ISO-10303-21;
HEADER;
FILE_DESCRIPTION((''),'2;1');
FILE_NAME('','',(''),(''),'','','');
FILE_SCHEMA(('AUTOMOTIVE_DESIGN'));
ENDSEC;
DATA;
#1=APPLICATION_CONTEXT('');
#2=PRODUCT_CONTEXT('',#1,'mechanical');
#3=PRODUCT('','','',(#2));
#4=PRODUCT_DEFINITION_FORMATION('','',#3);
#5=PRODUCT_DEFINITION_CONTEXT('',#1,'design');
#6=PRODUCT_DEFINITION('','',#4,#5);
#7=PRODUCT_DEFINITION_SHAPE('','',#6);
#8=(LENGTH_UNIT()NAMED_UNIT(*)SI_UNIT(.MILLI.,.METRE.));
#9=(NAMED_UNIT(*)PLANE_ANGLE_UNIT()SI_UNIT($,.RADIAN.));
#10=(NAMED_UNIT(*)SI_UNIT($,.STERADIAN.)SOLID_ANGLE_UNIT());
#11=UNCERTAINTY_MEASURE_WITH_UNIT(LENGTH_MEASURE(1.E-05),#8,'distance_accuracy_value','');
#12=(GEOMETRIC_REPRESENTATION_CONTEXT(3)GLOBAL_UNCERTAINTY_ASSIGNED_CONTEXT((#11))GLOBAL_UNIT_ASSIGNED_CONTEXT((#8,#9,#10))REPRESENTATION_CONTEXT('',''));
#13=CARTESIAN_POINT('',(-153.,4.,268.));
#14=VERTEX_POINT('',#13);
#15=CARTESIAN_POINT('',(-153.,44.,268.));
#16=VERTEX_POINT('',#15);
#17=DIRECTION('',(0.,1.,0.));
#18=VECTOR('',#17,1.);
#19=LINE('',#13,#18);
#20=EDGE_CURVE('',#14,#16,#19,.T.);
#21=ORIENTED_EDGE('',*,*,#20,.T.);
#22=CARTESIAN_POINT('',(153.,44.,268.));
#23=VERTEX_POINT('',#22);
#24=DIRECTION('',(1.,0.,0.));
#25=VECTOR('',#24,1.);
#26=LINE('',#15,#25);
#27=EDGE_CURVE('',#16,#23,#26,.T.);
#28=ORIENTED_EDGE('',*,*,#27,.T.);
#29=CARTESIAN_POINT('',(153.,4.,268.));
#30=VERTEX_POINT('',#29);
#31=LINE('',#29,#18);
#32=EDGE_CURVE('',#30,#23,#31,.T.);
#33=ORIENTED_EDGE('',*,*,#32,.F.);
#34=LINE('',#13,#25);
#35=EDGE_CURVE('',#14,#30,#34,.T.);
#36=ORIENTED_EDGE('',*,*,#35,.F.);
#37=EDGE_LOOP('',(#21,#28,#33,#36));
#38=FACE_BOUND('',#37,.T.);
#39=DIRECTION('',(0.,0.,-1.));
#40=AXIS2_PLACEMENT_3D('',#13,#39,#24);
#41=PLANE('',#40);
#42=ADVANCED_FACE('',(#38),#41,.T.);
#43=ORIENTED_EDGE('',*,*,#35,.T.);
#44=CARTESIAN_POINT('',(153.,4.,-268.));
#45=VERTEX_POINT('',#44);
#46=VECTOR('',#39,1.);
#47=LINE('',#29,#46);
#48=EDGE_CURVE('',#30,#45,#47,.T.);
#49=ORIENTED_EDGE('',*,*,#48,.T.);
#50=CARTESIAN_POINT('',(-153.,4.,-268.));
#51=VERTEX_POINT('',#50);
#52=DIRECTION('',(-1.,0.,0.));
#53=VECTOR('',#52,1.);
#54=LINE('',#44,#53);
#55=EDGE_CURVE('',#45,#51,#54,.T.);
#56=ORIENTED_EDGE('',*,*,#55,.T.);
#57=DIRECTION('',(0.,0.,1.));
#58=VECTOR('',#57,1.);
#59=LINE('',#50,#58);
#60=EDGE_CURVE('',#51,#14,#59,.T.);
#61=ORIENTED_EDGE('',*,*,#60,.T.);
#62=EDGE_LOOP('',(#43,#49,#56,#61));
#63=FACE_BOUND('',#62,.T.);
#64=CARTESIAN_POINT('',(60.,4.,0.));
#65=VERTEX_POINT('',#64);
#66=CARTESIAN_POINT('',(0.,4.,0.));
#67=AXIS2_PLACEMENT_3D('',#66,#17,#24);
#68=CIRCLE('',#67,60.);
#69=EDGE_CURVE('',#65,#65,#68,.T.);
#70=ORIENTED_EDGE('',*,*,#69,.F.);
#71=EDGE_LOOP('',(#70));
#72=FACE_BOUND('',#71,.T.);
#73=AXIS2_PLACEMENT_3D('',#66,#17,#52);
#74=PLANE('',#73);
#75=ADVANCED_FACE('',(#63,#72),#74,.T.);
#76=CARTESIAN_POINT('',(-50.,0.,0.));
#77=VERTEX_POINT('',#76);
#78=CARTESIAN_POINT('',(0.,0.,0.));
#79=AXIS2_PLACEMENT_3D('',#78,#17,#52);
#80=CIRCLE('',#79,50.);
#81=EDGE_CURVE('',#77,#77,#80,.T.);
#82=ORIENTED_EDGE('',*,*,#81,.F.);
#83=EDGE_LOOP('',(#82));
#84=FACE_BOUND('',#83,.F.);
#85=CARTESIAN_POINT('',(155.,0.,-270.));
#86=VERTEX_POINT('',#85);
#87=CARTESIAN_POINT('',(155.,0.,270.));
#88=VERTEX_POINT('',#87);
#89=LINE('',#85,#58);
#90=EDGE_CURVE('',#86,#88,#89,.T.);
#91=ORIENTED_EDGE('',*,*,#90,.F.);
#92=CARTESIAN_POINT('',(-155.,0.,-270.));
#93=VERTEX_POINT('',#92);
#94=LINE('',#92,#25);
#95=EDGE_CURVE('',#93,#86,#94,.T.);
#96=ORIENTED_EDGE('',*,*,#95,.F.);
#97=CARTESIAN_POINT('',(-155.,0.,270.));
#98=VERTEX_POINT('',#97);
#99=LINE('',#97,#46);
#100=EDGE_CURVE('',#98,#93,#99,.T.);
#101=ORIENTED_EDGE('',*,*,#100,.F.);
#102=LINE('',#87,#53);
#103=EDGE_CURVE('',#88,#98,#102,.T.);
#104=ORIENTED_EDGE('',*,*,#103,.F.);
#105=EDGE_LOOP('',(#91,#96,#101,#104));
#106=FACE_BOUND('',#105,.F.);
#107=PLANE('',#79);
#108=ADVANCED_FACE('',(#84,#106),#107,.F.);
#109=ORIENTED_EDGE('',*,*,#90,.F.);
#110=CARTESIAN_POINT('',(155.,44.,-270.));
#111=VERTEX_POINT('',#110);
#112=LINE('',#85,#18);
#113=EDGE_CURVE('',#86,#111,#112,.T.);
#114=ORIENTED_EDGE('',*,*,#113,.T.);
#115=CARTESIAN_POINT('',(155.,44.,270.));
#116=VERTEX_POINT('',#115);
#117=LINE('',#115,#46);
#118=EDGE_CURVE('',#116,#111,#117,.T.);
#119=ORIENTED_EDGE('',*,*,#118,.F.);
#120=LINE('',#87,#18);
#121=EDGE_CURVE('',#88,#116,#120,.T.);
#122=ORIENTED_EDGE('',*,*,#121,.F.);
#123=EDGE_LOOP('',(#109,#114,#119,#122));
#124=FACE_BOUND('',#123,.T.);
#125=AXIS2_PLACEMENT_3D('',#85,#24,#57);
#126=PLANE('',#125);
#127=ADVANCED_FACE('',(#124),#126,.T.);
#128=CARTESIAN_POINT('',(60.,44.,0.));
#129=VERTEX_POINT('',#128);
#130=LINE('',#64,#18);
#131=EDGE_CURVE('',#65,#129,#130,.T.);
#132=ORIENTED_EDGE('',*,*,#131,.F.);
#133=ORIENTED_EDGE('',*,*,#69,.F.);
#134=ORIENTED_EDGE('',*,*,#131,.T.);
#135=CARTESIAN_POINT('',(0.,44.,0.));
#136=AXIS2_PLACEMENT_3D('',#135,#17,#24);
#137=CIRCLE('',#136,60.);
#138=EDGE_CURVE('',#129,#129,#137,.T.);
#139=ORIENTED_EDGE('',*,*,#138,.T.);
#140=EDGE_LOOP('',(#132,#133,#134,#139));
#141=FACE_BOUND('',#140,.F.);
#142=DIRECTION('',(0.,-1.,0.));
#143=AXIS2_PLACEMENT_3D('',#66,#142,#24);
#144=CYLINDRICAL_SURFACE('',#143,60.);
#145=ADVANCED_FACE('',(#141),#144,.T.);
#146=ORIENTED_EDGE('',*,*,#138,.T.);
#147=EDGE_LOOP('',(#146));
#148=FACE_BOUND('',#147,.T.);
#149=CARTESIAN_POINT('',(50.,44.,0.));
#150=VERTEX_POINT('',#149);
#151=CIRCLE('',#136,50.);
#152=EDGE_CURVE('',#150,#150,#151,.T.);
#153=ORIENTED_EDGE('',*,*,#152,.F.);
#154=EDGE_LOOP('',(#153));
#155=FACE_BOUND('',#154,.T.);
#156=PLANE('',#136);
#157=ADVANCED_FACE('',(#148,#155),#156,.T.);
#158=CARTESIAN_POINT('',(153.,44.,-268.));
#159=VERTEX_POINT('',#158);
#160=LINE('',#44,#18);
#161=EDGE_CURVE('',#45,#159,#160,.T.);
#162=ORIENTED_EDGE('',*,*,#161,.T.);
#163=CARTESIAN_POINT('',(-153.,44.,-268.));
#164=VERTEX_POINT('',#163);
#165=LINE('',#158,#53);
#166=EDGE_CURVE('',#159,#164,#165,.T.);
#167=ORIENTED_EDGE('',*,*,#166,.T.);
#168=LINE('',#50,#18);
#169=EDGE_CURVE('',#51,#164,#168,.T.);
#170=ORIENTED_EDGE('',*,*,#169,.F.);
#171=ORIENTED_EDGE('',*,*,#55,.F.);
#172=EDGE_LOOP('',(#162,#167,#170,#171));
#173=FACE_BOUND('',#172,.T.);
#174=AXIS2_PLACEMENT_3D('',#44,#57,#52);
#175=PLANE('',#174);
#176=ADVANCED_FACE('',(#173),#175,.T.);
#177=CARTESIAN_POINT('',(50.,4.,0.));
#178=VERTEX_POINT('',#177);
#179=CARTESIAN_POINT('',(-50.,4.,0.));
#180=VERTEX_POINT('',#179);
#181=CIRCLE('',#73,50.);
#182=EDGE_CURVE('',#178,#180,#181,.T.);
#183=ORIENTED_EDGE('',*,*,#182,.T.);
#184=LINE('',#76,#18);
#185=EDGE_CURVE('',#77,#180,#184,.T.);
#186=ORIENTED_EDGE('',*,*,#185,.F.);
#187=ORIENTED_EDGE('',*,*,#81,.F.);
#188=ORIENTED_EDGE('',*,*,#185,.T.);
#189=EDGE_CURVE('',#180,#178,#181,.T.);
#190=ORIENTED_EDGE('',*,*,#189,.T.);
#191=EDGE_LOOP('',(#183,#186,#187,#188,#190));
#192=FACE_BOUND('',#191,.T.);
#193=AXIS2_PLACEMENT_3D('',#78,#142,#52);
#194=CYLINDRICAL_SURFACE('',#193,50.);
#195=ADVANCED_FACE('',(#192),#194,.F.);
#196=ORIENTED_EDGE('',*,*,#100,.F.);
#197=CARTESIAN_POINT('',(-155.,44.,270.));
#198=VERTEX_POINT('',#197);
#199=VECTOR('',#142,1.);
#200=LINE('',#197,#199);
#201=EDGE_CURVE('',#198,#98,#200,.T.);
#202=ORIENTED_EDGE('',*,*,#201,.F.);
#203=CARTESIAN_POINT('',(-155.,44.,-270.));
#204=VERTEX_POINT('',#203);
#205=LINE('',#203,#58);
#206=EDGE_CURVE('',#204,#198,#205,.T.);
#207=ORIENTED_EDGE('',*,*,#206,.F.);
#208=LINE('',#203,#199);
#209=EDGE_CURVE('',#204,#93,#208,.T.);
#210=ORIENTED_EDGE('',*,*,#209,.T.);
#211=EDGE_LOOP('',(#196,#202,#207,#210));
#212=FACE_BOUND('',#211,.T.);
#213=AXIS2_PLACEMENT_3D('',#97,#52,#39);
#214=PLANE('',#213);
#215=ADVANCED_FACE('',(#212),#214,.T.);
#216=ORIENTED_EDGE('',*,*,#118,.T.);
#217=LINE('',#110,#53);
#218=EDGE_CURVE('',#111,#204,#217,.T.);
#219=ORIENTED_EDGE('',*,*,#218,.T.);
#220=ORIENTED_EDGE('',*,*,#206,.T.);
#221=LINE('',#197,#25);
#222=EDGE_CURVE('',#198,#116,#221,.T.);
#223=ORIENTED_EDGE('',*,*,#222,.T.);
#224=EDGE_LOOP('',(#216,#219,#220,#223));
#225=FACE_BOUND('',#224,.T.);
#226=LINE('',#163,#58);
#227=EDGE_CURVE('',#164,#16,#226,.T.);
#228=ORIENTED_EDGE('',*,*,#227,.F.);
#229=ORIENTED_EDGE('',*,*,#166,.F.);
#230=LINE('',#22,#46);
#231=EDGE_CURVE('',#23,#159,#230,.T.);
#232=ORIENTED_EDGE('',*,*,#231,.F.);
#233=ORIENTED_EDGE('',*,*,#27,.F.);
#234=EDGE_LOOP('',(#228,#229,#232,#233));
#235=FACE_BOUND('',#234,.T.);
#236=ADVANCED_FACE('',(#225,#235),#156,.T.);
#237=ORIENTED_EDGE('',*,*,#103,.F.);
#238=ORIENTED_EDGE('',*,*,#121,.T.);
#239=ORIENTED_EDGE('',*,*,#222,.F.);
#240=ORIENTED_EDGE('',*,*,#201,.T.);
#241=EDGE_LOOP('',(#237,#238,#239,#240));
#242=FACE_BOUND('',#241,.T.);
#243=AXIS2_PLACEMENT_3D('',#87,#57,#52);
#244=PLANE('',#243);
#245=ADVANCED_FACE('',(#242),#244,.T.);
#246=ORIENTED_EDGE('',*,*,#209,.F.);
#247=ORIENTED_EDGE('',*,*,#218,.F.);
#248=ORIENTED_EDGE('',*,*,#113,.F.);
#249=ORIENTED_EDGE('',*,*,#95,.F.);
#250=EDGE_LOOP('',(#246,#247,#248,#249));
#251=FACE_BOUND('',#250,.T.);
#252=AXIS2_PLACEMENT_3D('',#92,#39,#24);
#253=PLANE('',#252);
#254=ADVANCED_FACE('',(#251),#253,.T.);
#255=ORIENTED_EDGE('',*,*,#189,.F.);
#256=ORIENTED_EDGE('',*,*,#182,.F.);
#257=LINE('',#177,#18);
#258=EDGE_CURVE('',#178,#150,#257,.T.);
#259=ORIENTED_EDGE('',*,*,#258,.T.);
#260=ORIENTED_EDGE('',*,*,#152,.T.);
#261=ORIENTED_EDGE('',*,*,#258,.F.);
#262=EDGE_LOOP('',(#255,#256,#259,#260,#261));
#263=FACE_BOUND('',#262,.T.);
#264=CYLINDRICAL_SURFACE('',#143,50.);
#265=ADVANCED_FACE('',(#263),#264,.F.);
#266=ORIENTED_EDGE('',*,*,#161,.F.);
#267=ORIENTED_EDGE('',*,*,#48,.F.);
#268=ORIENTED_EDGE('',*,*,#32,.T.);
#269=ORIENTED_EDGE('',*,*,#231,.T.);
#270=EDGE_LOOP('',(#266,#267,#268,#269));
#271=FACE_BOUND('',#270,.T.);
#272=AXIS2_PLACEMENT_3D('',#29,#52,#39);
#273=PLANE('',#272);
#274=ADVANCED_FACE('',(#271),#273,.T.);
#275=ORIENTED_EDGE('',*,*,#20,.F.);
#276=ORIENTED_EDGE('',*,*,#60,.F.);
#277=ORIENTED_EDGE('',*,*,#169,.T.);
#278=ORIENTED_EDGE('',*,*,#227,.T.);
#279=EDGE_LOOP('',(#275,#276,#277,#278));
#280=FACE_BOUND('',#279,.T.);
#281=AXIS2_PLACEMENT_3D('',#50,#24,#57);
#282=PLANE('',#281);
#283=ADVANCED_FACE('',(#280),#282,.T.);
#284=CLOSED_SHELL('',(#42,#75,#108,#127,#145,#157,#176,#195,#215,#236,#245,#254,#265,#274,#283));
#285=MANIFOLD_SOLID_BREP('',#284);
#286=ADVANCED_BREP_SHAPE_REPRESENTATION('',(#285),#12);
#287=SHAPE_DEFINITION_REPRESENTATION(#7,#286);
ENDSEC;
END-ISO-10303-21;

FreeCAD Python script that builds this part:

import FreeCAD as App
import Part
import Sketcher
Q = App.Units.Quantity


def add_polygon(sketch, points):
    """Adds a closed chain of lines whose ends are joined by coincident constraints."""
    first, n = sketch.GeometryCount, len(points)
    for a, b in zip(points, points[1:] + points[:1]):
        sketch.addGeometry(Part.LineSegment(App.Vector(*a, 0), App.Vector(*b, 0)), False)
    for i in range(n):
        sketch.addConstraint(Sketcher.Constraint("Coincident", first + i, 2, first + (i + 1) % n, 1))

doc = App.newDocument("Part")
body = doc.addObject("PartDesign::Body", "Body")

# Sketch on XZ plane
sketch1 = body.newObject("Sketcher::SketchObject", "Sketch")
sketch1.AttachmentSupport = (doc.getObject("XZ_Plane"), [""])
sketch1.MapMode = "FlatFace"
add_polygon(sketch1, [(-155, 270), (155, 270), (155, -270), (-155, -270)])  # lines 0-3
sketch1.addGeometry(Part.Circle(App.Vector(0, 0, 0), App.Vector(0, 0, 1), 50), False)  # 4
sketch1.addConstraint([
    Sketcher.Constraint("Horizontal", 0),
    Sketcher.Constraint("Vertical", 1),
    Sketcher.Constraint("Horizontal", 2),
    Sketcher.Constraint("Vertical", 3),
    Sketcher.Constraint("Coincident", 4, 3, -1, 1),
    Sketcher.Constraint("Symmetric", 0, 2, 2, 2, -1, 1),
    Sketcher.Constraint("Diameter", 4, Q("100 mm")),
    Sketcher.Constraint("DistanceX", 0, 1, 0, 2, Q("310 mm")),
    Sketcher.Constraint("DistanceY", 1, 2, 1, 1, Q("540 mm")),
])
pad1 = body.newObject("PartDesign::Pad", "Pad")
pad1.Profile = sketch1
pad1.Length = 4
pad1.Reversed = True

# Sketch on XZ plane
sketch2 = body.newObject("Sketcher::SketchObject", "Sketch001")
sketch2.AttachmentSupport = (doc.getObject("XZ_Plane"), [""])
sketch2.MapMode = "FlatFace"
sketch2.AttachmentOffset = App.Placement(App.Vector(0, 0, -4), App.Rotation())
add_polygon(sketch2, [(155, -270), (-155, -270), (-155, 270), (155, 270)])  # lines 0-3
add_polygon(sketch2, [(-153, -268), (153, -268), (153, 268), (-153, 268)])  # lines 4-7
sketch2.addConstraint([
    Sketcher.Constraint("Horizontal", 0),
    Sketcher.Constraint("Vertical", 1),
    Sketcher.Constraint("Horizontal", 2),
    Sketcher.Constraint("Vertical", 3),
    Sketcher.Constraint("Horizontal", 4),
    Sketcher.Constraint("Vertical", 5),
    Sketcher.Constraint("Horizontal", 6),
    Sketcher.Constraint("Vertical", 7),
    Sketcher.Constraint("Symmetric", 0, 2, 2, 2, -1, 1),
    Sketcher.Constraint("Symmetric", 4, 2, 6, 2, -1, 1),
    Sketcher.Constraint("DistanceX", 4, 1, 4, 2, Q("306 mm")),
    Sketcher.Constraint("DistanceY", 5, 1, 5, 2, Q("536 mm")),
    Sketcher.Constraint("DistanceX", 0, 2, 0, 1, Q("310 mm")),
    Sketcher.Constraint("DistanceY", 1, 1, 1, 2, Q("540 mm")),
])
pad2 = body.newObject("PartDesign::Pad", "Pad001")
pad2.Profile = sketch2
pad2.Length = 40
pad2.Reversed = True

# Sketch on XZ plane
sketch3 = body.newObject("Sketcher::SketchObject", "Sketch002")
sketch3.AttachmentSupport = (doc.getObject("XZ_Plane"), [""])
sketch3.MapMode = "FlatFace"
sketch3.AttachmentOffset = App.Placement(App.Vector(0, 0, -4), App.Rotation())
sketch3.addGeometry([
    Part.Circle(App.Vector(0, 0, 0), App.Vector(0, 0, 1), 60),
    Part.Circle(App.Vector(0, 0, 0), App.Vector(0, 0, 1), 50),
], False)
sketch3.addConstraint([
    Sketcher.Constraint("Coincident", 0, 3, -1, 1),
    Sketcher.Constraint("Coincident", 1, 3, -1, 1),
    Sketcher.Constraint("Diameter", 0, Q("120 mm")),
    Sketcher.Constraint("Diameter", 1, Q("100 mm")),
])
pad3 = body.newObject("PartDesign::Pad", "Pad002")
pad3.Profile = sketch3
pad3.Length = 40
pad3.Reversed = True

doc.recompute()
